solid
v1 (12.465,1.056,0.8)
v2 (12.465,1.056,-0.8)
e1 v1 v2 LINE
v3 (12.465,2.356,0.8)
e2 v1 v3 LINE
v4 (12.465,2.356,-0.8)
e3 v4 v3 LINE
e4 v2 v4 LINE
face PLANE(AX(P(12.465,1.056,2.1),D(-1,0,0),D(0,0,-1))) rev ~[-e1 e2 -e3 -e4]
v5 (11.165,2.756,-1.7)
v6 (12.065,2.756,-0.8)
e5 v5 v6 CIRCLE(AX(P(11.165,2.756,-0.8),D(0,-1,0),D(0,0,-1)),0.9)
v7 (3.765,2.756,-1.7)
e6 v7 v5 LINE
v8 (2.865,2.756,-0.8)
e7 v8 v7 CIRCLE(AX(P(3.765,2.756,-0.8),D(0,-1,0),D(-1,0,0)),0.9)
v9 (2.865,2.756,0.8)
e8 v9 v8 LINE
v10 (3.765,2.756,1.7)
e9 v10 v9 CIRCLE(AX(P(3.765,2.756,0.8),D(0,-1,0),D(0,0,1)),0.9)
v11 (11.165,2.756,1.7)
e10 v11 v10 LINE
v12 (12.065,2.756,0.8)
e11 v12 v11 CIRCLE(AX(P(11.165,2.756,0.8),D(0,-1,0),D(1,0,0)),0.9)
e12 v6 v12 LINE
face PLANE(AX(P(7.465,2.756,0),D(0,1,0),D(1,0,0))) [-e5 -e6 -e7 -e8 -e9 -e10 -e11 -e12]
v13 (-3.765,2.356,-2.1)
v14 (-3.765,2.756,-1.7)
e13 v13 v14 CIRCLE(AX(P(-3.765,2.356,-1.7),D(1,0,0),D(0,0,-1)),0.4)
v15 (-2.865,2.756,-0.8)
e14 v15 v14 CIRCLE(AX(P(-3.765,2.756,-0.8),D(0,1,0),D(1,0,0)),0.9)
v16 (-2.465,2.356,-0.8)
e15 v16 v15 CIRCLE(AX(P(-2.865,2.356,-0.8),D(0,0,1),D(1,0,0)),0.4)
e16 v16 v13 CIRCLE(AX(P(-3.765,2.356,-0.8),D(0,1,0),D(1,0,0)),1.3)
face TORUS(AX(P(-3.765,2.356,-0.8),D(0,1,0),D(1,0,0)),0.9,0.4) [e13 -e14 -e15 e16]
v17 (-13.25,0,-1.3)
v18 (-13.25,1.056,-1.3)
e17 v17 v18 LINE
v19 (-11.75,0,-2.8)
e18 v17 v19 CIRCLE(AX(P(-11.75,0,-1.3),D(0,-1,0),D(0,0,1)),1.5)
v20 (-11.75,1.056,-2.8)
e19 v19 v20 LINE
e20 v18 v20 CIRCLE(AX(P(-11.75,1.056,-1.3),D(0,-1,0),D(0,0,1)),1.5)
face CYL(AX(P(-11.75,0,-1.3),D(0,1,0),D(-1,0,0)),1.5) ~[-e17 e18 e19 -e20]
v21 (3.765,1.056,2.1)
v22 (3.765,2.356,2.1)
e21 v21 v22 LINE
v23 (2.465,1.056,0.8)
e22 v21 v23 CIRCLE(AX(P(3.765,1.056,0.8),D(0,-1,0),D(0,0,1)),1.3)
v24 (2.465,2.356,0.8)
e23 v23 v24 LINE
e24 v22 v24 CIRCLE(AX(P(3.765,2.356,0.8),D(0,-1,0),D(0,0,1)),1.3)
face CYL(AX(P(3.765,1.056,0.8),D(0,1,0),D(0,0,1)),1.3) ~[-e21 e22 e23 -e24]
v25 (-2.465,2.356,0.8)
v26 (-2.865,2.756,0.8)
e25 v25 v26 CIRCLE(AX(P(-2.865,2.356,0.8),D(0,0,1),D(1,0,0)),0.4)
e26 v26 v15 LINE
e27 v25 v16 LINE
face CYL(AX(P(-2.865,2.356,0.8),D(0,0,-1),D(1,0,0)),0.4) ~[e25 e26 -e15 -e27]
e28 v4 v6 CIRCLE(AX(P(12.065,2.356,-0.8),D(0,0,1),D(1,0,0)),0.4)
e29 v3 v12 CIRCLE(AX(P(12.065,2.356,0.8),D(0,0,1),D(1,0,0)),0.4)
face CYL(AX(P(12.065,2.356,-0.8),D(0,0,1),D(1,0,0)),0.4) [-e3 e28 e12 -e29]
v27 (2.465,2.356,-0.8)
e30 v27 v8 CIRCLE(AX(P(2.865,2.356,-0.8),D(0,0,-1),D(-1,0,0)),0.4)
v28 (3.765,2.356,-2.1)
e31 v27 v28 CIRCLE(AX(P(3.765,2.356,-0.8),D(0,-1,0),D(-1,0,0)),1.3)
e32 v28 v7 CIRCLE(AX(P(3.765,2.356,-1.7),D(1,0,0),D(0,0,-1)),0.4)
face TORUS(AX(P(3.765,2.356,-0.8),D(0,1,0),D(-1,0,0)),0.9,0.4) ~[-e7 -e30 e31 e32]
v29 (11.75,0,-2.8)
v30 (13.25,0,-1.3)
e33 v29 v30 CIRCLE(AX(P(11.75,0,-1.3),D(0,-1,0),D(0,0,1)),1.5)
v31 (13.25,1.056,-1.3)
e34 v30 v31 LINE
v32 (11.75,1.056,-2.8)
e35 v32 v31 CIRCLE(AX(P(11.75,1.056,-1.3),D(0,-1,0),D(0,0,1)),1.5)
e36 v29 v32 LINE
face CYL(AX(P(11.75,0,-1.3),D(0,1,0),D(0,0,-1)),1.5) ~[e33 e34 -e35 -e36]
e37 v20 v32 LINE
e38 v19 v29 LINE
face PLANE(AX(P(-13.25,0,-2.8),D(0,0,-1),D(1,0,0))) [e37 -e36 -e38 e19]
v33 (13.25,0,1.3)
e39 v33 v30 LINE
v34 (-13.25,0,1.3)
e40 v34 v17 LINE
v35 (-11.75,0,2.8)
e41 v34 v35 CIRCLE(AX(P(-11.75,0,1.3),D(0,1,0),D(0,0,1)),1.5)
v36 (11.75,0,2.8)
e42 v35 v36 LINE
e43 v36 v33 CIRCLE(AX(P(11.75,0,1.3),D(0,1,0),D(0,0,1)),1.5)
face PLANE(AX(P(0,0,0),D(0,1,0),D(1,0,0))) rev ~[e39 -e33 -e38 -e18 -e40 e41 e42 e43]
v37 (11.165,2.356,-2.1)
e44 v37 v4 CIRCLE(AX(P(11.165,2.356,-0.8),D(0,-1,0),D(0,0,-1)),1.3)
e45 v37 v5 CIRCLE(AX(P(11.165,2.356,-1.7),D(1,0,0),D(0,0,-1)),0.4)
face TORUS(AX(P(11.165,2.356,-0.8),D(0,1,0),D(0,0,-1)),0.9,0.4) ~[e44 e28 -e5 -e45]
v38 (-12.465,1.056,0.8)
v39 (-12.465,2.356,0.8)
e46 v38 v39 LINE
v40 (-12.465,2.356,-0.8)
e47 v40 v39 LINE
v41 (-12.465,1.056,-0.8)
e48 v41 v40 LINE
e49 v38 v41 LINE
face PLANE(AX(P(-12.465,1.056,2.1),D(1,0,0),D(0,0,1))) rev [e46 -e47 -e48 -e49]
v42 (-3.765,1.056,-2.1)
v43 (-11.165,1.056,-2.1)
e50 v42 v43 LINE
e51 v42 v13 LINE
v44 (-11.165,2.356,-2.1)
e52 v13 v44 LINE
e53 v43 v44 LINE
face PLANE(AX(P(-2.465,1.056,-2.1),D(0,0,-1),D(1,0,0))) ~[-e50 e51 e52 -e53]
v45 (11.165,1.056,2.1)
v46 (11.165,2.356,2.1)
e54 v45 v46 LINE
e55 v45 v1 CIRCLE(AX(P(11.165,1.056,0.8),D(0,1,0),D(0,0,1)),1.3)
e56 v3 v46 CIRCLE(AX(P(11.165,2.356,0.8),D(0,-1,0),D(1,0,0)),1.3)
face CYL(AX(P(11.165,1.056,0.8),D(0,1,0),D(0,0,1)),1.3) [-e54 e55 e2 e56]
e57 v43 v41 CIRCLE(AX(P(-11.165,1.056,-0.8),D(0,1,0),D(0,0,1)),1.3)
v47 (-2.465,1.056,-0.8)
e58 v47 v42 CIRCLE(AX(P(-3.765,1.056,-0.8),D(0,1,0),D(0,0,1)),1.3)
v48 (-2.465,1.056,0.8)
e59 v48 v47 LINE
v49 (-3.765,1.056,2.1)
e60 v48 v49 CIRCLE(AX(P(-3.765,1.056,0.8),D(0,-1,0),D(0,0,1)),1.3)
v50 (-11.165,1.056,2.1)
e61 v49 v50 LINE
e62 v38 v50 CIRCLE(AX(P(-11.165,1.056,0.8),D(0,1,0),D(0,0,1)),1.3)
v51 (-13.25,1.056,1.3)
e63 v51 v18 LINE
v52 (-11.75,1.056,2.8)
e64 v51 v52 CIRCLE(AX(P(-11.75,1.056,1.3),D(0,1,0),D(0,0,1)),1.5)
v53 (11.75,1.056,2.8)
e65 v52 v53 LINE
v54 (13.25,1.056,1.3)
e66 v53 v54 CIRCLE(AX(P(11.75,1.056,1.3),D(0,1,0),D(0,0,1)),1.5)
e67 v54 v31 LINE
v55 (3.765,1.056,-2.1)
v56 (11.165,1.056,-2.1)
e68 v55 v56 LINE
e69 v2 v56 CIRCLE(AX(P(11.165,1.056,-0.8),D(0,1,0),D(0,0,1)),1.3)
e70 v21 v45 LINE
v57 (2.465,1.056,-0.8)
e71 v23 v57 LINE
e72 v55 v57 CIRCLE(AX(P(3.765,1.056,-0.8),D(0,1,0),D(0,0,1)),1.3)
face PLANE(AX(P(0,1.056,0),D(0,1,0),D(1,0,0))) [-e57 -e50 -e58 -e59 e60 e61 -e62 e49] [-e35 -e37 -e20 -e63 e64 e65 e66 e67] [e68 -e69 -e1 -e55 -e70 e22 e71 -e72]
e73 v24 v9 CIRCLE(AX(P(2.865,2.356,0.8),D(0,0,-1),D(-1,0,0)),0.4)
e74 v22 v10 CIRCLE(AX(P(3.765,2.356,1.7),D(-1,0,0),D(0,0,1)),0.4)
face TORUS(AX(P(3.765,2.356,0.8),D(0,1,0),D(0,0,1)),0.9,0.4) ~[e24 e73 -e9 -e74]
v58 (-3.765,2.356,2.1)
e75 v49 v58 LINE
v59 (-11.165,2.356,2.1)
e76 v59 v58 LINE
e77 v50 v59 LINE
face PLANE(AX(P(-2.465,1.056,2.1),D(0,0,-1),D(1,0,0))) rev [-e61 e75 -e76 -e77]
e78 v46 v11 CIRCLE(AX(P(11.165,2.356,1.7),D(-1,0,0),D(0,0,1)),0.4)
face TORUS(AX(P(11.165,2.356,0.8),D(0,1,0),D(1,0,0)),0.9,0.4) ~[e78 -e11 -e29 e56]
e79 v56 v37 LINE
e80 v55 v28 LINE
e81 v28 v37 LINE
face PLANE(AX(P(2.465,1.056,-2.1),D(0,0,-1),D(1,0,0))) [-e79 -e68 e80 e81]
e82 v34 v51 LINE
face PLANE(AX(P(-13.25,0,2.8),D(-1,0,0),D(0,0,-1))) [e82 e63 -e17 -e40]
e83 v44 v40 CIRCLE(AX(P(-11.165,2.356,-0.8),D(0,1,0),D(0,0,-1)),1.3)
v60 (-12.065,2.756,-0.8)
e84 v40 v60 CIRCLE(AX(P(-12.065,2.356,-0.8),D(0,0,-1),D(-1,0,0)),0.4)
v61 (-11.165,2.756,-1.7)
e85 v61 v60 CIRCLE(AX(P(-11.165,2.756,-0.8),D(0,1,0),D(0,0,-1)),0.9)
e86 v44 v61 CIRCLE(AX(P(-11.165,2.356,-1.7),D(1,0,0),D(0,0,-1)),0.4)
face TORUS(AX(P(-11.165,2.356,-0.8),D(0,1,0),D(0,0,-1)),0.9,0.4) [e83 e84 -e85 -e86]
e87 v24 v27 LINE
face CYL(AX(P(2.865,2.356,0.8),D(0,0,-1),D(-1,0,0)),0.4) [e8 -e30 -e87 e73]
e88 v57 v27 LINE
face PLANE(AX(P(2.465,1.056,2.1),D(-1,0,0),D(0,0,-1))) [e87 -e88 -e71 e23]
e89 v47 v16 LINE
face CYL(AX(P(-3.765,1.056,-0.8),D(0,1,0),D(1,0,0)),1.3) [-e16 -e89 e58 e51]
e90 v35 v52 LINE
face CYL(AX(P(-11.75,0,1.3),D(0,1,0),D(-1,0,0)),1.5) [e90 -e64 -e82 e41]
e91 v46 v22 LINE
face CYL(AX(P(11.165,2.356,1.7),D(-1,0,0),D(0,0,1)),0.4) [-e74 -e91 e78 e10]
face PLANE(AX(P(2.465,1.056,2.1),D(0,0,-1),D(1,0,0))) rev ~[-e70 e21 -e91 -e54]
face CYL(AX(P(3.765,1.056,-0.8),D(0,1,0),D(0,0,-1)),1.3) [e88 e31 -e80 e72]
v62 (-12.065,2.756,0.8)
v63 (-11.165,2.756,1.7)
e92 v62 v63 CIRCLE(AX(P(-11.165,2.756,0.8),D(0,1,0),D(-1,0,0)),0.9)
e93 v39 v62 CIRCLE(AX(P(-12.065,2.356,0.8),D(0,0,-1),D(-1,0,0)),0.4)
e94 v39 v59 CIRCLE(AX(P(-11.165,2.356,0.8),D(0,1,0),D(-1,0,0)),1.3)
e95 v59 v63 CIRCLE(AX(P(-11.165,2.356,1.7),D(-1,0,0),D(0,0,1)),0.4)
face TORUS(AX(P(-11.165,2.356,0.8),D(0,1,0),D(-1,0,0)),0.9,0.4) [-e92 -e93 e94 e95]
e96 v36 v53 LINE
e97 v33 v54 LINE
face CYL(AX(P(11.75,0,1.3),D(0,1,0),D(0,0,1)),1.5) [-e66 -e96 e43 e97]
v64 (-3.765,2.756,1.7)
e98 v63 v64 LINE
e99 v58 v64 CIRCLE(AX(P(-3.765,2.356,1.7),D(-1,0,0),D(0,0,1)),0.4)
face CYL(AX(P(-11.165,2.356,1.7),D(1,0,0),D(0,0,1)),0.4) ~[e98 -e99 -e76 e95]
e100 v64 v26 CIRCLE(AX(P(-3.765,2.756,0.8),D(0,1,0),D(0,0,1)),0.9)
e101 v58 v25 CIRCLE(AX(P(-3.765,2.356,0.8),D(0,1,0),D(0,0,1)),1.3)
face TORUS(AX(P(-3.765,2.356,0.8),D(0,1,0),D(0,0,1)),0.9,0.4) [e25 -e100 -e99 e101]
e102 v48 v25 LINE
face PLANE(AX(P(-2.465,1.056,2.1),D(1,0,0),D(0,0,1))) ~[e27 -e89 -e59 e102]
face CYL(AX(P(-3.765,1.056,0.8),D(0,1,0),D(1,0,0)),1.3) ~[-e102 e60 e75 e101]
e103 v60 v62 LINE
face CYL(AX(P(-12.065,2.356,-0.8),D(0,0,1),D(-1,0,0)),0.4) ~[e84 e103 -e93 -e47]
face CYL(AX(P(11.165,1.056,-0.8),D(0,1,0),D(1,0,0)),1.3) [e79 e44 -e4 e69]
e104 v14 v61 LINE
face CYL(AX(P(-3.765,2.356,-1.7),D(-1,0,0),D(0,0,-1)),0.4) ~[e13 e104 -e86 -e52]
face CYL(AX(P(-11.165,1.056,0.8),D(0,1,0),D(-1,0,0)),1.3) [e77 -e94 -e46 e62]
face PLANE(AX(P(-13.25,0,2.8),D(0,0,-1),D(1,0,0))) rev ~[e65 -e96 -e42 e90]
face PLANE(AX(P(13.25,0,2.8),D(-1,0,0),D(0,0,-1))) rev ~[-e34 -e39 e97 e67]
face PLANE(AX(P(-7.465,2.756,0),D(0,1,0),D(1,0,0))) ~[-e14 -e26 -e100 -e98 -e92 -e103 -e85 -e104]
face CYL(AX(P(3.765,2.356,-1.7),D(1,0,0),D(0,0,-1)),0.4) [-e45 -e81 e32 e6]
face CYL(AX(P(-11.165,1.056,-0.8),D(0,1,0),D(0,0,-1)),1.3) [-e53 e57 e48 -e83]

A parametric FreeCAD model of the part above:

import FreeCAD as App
import Part
import Sketcher

V = App.Vector


def edges_at(feature, points):
    """Names of the edges that pass closest to the given points."""
    edges = feature.Shape.Edges
    near = lambda p: min(range(len(edges)), key=lambda i: edges[i].distToShape(Part.Vertex(*p))[0])
    return sorted({f"Edge{near(p) + 1}" for p in points})

doc = App.newDocument("Part")
body = doc.addObject("PartDesign::Body", "Body")

sketch1 = body.newObject("Sketcher::SketchObject", "Sketch")
sketch1.AttachmentSupport = (doc.getObject("XZ_Plane"), [""])
sketch1.MapMode = "FlatFace"
sketch1.addGeometry([
    Part.LineSegment(V(-13, -3, 0), V(-13, 3, 0)),
    Part.LineSegment(V(-13, 3, 0), V(13, 3, 0)),
    Part.LineSegment(V(13, 3, 0), V(13, -3, 0)),
    Part.LineSegment(V(13, -3, 0), V(-13, -3, 0)),
], False)
sketch1.addConstraint([
    Sketcher.Constraint("Coincident", 0, 2, 1, 1),
    Sketcher.Constraint("Coincident", 1, 2, 2, 1),
    Sketcher.Constraint("Coincident", 2, 2, 3, 1),
    Sketcher.Constraint("Coincident", 3, 2, 0, 1),
    Sketcher.Constraint("Vertical", 0),
    Sketcher.Constraint("Horizontal", 1),
    Sketcher.Constraint("Vertical", 2),
    Sketcher.Constraint("Horizontal", 3),
    Sketcher.Constraint("Symmetric", 0, 2, 2, 2, -1, 1),
    Sketcher.Constraint("DistanceX", 1, 1, 1, 2, 26.5),
    Sketcher.Constraint("DistanceY", 0, 1, 0, 2, 5.6),
])
pad1 = body.newObject("PartDesign::Pad", "Pad")
pad1.Profile = sketch1
pad1.Length = 1.056
pad1.Reversed = True

sketch2 = body.newObject("Sketcher::SketchObject", "Sketch001")
sketch2.AttachmentSupport = (doc.getObject("XZ_Plane"), [""])
sketch2.MapMode = "FlatFace"
sketch2.AttachmentOffset = App.Placement(V(0, 0, -1.056), App.Rotation())
sketch2.addGeometry([
    Part.LineSegment(V(2.5, -2.1, 0), V(2.5, 2.1, 0)),
    Part.LineSegment(V(2.5, 2.1, 0), V(12.5, 2.1, 0)),
    Part.LineSegment(V(12.5, 2.1, 0), V(12.5, -2.1, 0)),
    Part.LineSegment(V(12.5, -2.1, 0), V(2.5, -2.1, 0)),
], False)
sketch2.addConstraint([
    Sketcher.Constraint("Coincident", 0, 2, 1, 1),
    Sketcher.Constraint("Coincident", 1, 2, 2, 1),
    Sketcher.Constraint("Coincident", 2, 2, 3, 1),
    Sketcher.Constraint("Coincident", 3, 2, 0, 1),
    Sketcher.Constraint("Vertical", 0),
    Sketcher.Constraint("Horizontal", 1),
    Sketcher.Constraint("Vertical", 2),
    Sketcher.Constraint("Horizontal", 3),
    Sketcher.Constraint("DistanceX", 1, 1, 1, 2, 10.0),
    Sketcher.Constraint("DistanceY", 0, 1, 0, 2, 4.2),
    Sketcher.Constraint("DistanceY", -1, 1, 0, 2, 2.1),
    Sketcher.Constraint("DistanceX", -1, 1, 0, 2, 2.465),
])
pad2 = body.newObject("PartDesign::Pad", "Pad001")
pad2.Profile = sketch2
pad2.Length = 1.7
pad2.Reversed = True
doc.recompute()

fillet = body.newObject("PartDesign::Fillet", "Fillet")
fillet.Base = (pad2, edges_at(pad2, [
    (13.25, 0.528, 2.8),
    (-13.25, 0.528, 2.8),
    (-13.25, 0.528, -2.8),
    (13.25, 0.528, -2.8),
]))
fillet.Radius = 1.5
doc.recompute()

fillet2 = body.newObject("PartDesign::Fillet", "Fillet001")
fillet2.Base = (fillet, edges_at(fillet, [
    (12.465, 1.906, 2.1),
    (12.465, 1.906, -2.1),
    (2.465, 1.906, -2.1),
    (2.465, 1.906, 2.1),
]))
fillet2.Radius = 1.3
doc.recompute()

fillet3 = body.newObject("PartDesign::Fillet", "Fillet002")
fillet3.Base = (fillet2, edges_at(fillet2, [
    (2.465, 2.756, 0),
    (7.465, 2.756, -2.1),
    (12.465, 2.756, 0),
    (7.465, 2.756, 2.1),
    (2.846, 2.756, 1.719),
    (12.084, 2.756, 1.719),
    (12.084, 2.756, -1.719),
    (2.846, 2.756, -1.719),
]))
fillet3.Radius = 0.4
doc.recompute()

mirrored = body.newObject("PartDesign::Mirrored", "Mirrored")
mirrored.Originals = [pad2]
mirrored.MirrorPlane = (doc.getObject("YZ_Plane"), [""])
body.Tip = mirrored
doc.recompute()

fillet4 = body.newObject("PartDesign::Fillet", "Fillet003")
fillet4.Base = (mirrored, edges_at(mirrored, [
    (-12.465, 1.906, 2.1),
    (-12.465, 1.906, -2.1),
    (-2.465, 1.906, -2.1),
    (-2.465, 1.906, 2.1),
]))
fillet4.Radius = 1.3
doc.recompute()

fillet5 = body.newObject("PartDesign::Fillet", "Fillet004")
fillet5.Base = (fillet4, edges_at(fillet4, [
    (-2.465, 2.756, 0),
    (-7.465, 2.756, -2.1),
    (-12.465, 2.756, 0),
    (-7.465, 2.756, 2.1),
    (-2.846, 2.756, 1.719),
    (-12.084, 2.756, 1.719),
    (-12.084, 2.756, -1.719),
    (-2.846, 2.756, -1.719),
]))
fillet5.Radius = 0.4

doc.recompute()
